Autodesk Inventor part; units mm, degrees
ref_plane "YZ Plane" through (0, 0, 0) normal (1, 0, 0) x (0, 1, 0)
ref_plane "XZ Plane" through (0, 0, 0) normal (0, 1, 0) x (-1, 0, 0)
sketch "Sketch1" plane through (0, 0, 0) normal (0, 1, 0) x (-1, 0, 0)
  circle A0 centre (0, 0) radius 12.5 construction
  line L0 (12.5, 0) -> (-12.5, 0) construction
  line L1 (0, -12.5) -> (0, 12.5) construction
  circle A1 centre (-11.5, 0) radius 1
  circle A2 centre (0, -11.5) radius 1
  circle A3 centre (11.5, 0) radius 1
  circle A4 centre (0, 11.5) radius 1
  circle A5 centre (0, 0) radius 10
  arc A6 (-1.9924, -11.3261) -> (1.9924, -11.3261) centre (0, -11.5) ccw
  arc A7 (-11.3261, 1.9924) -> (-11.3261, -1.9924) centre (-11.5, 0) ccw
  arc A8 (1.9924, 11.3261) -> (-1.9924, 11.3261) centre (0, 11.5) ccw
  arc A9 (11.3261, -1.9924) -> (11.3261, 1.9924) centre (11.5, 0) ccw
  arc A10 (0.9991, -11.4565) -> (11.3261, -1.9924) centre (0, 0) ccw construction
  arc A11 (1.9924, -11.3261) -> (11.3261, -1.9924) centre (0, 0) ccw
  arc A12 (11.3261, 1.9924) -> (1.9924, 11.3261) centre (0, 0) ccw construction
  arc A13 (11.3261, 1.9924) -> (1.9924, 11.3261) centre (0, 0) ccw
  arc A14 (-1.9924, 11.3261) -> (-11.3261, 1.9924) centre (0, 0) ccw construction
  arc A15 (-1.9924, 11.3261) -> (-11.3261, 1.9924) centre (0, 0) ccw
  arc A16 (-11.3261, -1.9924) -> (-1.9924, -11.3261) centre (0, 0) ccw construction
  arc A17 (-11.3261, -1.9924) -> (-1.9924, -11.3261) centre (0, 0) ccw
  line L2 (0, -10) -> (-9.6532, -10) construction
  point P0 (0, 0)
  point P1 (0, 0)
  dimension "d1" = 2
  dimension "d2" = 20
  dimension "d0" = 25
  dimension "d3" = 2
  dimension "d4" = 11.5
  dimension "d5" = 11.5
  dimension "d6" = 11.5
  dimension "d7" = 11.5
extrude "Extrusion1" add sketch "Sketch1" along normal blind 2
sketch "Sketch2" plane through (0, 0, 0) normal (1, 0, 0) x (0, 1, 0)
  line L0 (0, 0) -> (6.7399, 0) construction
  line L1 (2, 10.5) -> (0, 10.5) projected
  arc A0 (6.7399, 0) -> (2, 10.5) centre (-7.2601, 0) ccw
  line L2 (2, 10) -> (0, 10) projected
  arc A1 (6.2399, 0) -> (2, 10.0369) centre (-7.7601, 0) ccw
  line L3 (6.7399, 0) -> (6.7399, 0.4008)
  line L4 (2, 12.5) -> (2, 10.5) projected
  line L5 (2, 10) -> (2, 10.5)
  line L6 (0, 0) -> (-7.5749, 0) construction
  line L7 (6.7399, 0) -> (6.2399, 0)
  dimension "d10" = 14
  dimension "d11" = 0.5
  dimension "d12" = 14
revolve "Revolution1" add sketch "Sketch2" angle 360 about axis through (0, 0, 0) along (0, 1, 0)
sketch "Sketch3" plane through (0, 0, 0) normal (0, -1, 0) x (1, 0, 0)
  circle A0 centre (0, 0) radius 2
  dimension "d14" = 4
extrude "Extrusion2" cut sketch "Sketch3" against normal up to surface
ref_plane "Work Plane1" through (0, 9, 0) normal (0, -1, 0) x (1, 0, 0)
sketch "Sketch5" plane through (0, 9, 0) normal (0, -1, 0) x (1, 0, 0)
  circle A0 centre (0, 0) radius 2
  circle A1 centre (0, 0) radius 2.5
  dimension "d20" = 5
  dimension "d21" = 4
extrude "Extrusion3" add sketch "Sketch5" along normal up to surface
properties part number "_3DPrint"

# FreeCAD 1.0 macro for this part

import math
import FreeCAD as App
import Part
import Sketcher
from FreeCAD import Vector
Q = App.Units.Quantity

doc = App.newDocument("Part")
body = doc.addObject("PartDesign::Body", "Body")

# Sketch on XZ plane
sketch1 = doc.addObject("Sketcher::SketchObject", "Sketch")
body.addObject(sketch1)
sketch1.AttachmentSupport = (doc.XZ_Plane, [""])
sketch1.MapMode = "FlatFace"
sketch1.addGeometry(Part.ArcOfCircle(Part.Circle(Vector(0, 0, 0), Vector(0, 0, 1), 11.500009), math.radians(-80.023046), math.radians(-9.976954)), False)
sketch1.addGeometry(Part.ArcOfCircle(Part.Circle(Vector(0, -11.5, 0), Vector(0, 0, 1), 1.999975), math.radians(175.01177), math.radians(364.98823)), False)
sketch1.addGeometry(Part.ArcOfCircle(Part.Circle(Vector(0, 0, 0), Vector(0, 0, 1), 11.500009), math.radians(-170.023046), math.radians(-99.976954)), False)
sketch1.addGeometry(Part.ArcOfCircle(Part.Circle(Vector(-11.5, 0, 0), Vector(0, 0, 1), 1.999975), math.radians(85.01177), math.radians(274.98823)), False)
sketch1.addGeometry(Part.ArcOfCircle(Part.Circle(Vector(0, 0, 0), Vector(0, 0, 1), 11.500009), math.radians(99.976954), math.radians(170.023046)), False)
sketch1.addGeometry(Part.ArcOfCircle(Part.Circle(Vector(0, 11.5, 0), Vector(0, 0, 1), 1.999975), math.radians(-4.98823), math.radians(184.98823)), False)
sketch1.addGeometry(Part.ArcOfCircle(Part.Circle(Vector(0, 0, 0), Vector(0, 0, 1), 11.500009), math.radians(9.976954), math.radians(80.023046)), False)
sketch1.addGeometry(Part.ArcOfCircle(Part.Circle(Vector(11.5, 0, 0), Vector(0, 0, 1), 1.999975), math.radians(-94.98823), math.radians(94.98823)), False)
sketch1.addGeometry(Part.Circle(Vector(0, -11.5, 0), Vector(0, 0, 1), 1), False)
sketch1.addGeometry(Part.Circle(Vector(11.5, 0, 0), Vector(0, 0, 1), 1), False)
sketch1.addGeometry(Part.Circle(Vector(0, 0, 0), Vector(0, 0, 1), 10), False)
sketch1.addGeometry(Part.Circle(Vector(-11.5, 0, 0), Vector(0, 0, 1), 1), False)
sketch1.addGeometry(Part.Circle(Vector(0, 11.5, 0), Vector(0, 0, 1), 1), False)
sketch1.addConstraint(Sketcher.Constraint("Coincident", 0, 1, 1, 2))
sketch1.addConstraint(Sketcher.Constraint("Coincident", 1, 1, 2, 2))
sketch1.addConstraint(Sketcher.Constraint("Coincident", 2, 1, 3, 2))
sketch1.addConstraint(Sketcher.Constraint("Coincident", 3, 1, 4, 2))
sketch1.addConstraint(Sketcher.Constraint("Coincident", 4, 1, 5, 2))
sketch1.addConstraint(Sketcher.Constraint("Coincident", 5, 1, 6, 2))
sketch1.addConstraint(Sketcher.Constraint("Coincident", 6, 1, 7, 2))
sketch1.addConstraint(Sketcher.Constraint("Coincident", 7, 1, 0, 2))
sketch1.addConstraint(Sketcher.Constraint("Coincident", 0, 3, -1, 1))
sketch1.addConstraint(Sketcher.Constraint("Coincident", 2, 3, -1, 1))
sketch1.addConstraint(Sketcher.Constraint("Coincident", 4, 3, -1, 1))
sketch1.addConstraint(Sketcher.Constraint("Coincident", 6, 3, -1, 1))
sketch1.addConstraint(Sketcher.Constraint("Coincident", 10, 3, -1, 1))
sketch1.addConstraint(Sketcher.Constraint("Coincident", 8, 3, 1, 3))
sketch1.addConstraint(Sketcher.Constraint("Coincident", 9, 3, 7, 3))
sketch1.addConstraint(Sketcher.Constraint("Coincident", 11, 3, 3, 3))
sketch1.addConstraint(Sketcher.Constraint("Coincident", 12, 3, 5, 3))
sketch1.addConstraint(Sketcher.Constraint("Equal", 0, 2))
sketch1.addConstraint(Sketcher.Constraint("Equal", 1, 3))
sketch1.addConstraint(Sketcher.Constraint("Equal", 2, 4))
sketch1.addConstraint(Sketcher.Constraint("Equal", 3, 5))
sketch1.addConstraint(Sketcher.Constraint("Equal", 4, 6))
sketch1.addConstraint(Sketcher.Constraint("Equal", 5, 7))
sketch1.addConstraint(Sketcher.Constraint("Equal", 8, 9))
sketch1.addConstraint(Sketcher.Constraint("Equal", 9, 11))
sketch1.addConstraint(Sketcher.Constraint("Equal", 11, 12))
sketch1.addConstraint(Sketcher.Constraint("Symmetric", 1, 3, 5, 3, -1, 1))
sketch1.addConstraint(Sketcher.Constraint("Symmetric", 3, 3, 7, 3, -1, 1))
sketch1.addConstraint(Sketcher.Constraint("PointOnObject", 1, 3, -2))
sketch1.addConstraint(Sketcher.Constraint("PointOnObject", 3, 3, -1))
sketch1.addConstraint(Sketcher.Constraint("Diameter", 8, Q("2 mm")))
sketch1.addConstraint(Sketcher.Constraint("Diameter", 10, Q("20 mm")))
sketch1.addConstraint(Sketcher.Constraint("Radius", 1, Q("2 mm")))
sketch1.addConstraint(Sketcher.Constraint("Radius", 0, Q("11.5 mm")))
sketch1.addConstraint(Sketcher.Constraint("DistanceY", 1, 3, -1, 1, Q("11.5 mm")))
sketch1.addConstraint(Sketcher.Constraint("DistanceX", 3, 3, -1, 1, Q("11.5 mm")))
pad1 = doc.addObject("PartDesign::Pad", "Pad")
body.addObject(pad1)
pad1.Profile = sketch1
pad1.Length = 2
pad1.Reversed = True

# Sketch on YZ plane
sketch2 = doc.addObject("Sketcher::SketchObject", "Sketch001")
body.addObject(sketch2)
sketch2.AttachmentSupport = (doc.YZ_Plane, [""])
sketch2.MapMode = "FlatFace"
sketch2.addGeometry(Part.LineSegment(Vector(6.2399, 0, 0), Vector(6.7399, 0, 0)), False)
sketch2.addGeometry(Part.ArcOfCircle(Part.Circle(Vector(-7.2601, 0, 0), Vector(0, 0, 1), 14), math.radians(0), math.radians(48.590469)), False)
sketch2.addGeometry(Part.LineSegment(Vector(2, 10.5, 0), Vector(2, 10.0369, 0)), False)
sketch2.addGeometry(Part.ArcOfCircle(Part.Circle(Vector(-7.7601, 0, 0), Vector(0, 0, 1), 14), math.radians(0), math.radians(45.801053)), False)
sketch2.addConstraint(Sketcher.Constraint("Coincident", 0, 2, 1, 1))
sketch2.addConstraint(Sketcher.Constraint("Coincident", 1, 2, 2, 1))
sketch2.addConstraint(Sketcher.Constraint("Coincident", 2, 2, 3, 2))
sketch2.addConstraint(Sketcher.Constraint("Coincident", 3, 1, 0, 1))
sketch2.addConstraint(Sketcher.Constraint("Horizontal", 0))
sketch2.addConstraint(Sketcher.Constraint("Vertical", 2))
sketch2.addConstraint(Sketcher.Constraint("Equal", 1, 3))
sketch2.addConstraint(Sketcher.Constraint("PointOnObject", 1, 3, -1))
sketch2.addConstraint(Sketcher.Constraint("PointOnObject", 3, 3, -1))
sketch2.addConstraint(Sketcher.Constraint("PointOnObject", 0, 2, -1))
sketch2.addConstraint(Sketcher.Constraint("Radius", 1, Q("14 mm")))
sketch2.addConstraint(Sketcher.Constraint("DistanceX", 0, 1, 0, 2, Q("0.5 mm")))
sketch2.addConstraint(Sketcher.Constraint("DistanceX", -1, 1, 1, 2, Q("2 mm")))
sketch2.addConstraint(Sketcher.Constraint("DistanceY", -1, 1, 1, 2, Q("10.5 mm")))
revolution = doc.addObject("PartDesign::Revolution", "Revolution")
body.addObject(revolution)
revolution.Profile = sketch2
revolution.ReferenceAxis = (sketch2, ["H_Axis"])
revolution.Angle = 360

# Sketch on XZ plane
sketch3 = doc.addObject("Sketcher::SketchObject", "Sketch002")
body.addObject(sketch3)
sketch3.AttachmentSupport = (doc.XZ_Plane, [""])
sketch3.MapMode = "FlatFace"
sketch3.addGeometry(Part.Circle(Vector(0, 0, 0), Vector(0, 0, 1), 2), False)
sketch3.addConstraint(Sketcher.Constraint("Coincident", 0, 3, -1, 1))
sketch3.addConstraint(Sketcher.Constraint("Diameter", 0, Q("4 mm")))
pocket1 = doc.addObject("PartDesign::Pocket", "Pocket")
body.addObject(pocket1)
pocket1.Profile = sketch3
pocket1.Length = 6.7399

# Sketch on XZ plane
sketch4 = doc.addObject("Sketcher::SketchObject", "Sketch003")
body.addObject(sketch4)
sketch4.AttachmentSupport = (doc.XZ_Plane, [""])
sketch4.MapMode = "FlatFace"
sketch4.AttachmentOffset = App.Placement(Vector(0, 0, -9), App.Rotation())
sketch4.addGeometry(Part.Circle(Vector(0, 0, 0), Vector(0, 0, 1), 2.5), False)
sketch4.addGeometry(Part.Circle(Vector(0, 0, 0), Vector(0, 0, 1), 2), False)
sketch4.addConstraint(Sketcher.Constraint("Coincident", 0, 3, -1, 1))
sketch4.addConstraint(Sketcher.Constraint("Coincident", 1, 3, -1, 1))
sketch4.addConstraint(Sketcher.Constraint("Diameter", 0, Q("5 mm")))
sketch4.addConstraint(Sketcher.Constraint("Diameter", 1, Q("4 mm")))
pad2 = doc.addObject("PartDesign::Pad", "Pad001")
body.addObject(pad2)
pad2.Profile = sketch4
pad2.Length = 2.4851

doc.recompute()
